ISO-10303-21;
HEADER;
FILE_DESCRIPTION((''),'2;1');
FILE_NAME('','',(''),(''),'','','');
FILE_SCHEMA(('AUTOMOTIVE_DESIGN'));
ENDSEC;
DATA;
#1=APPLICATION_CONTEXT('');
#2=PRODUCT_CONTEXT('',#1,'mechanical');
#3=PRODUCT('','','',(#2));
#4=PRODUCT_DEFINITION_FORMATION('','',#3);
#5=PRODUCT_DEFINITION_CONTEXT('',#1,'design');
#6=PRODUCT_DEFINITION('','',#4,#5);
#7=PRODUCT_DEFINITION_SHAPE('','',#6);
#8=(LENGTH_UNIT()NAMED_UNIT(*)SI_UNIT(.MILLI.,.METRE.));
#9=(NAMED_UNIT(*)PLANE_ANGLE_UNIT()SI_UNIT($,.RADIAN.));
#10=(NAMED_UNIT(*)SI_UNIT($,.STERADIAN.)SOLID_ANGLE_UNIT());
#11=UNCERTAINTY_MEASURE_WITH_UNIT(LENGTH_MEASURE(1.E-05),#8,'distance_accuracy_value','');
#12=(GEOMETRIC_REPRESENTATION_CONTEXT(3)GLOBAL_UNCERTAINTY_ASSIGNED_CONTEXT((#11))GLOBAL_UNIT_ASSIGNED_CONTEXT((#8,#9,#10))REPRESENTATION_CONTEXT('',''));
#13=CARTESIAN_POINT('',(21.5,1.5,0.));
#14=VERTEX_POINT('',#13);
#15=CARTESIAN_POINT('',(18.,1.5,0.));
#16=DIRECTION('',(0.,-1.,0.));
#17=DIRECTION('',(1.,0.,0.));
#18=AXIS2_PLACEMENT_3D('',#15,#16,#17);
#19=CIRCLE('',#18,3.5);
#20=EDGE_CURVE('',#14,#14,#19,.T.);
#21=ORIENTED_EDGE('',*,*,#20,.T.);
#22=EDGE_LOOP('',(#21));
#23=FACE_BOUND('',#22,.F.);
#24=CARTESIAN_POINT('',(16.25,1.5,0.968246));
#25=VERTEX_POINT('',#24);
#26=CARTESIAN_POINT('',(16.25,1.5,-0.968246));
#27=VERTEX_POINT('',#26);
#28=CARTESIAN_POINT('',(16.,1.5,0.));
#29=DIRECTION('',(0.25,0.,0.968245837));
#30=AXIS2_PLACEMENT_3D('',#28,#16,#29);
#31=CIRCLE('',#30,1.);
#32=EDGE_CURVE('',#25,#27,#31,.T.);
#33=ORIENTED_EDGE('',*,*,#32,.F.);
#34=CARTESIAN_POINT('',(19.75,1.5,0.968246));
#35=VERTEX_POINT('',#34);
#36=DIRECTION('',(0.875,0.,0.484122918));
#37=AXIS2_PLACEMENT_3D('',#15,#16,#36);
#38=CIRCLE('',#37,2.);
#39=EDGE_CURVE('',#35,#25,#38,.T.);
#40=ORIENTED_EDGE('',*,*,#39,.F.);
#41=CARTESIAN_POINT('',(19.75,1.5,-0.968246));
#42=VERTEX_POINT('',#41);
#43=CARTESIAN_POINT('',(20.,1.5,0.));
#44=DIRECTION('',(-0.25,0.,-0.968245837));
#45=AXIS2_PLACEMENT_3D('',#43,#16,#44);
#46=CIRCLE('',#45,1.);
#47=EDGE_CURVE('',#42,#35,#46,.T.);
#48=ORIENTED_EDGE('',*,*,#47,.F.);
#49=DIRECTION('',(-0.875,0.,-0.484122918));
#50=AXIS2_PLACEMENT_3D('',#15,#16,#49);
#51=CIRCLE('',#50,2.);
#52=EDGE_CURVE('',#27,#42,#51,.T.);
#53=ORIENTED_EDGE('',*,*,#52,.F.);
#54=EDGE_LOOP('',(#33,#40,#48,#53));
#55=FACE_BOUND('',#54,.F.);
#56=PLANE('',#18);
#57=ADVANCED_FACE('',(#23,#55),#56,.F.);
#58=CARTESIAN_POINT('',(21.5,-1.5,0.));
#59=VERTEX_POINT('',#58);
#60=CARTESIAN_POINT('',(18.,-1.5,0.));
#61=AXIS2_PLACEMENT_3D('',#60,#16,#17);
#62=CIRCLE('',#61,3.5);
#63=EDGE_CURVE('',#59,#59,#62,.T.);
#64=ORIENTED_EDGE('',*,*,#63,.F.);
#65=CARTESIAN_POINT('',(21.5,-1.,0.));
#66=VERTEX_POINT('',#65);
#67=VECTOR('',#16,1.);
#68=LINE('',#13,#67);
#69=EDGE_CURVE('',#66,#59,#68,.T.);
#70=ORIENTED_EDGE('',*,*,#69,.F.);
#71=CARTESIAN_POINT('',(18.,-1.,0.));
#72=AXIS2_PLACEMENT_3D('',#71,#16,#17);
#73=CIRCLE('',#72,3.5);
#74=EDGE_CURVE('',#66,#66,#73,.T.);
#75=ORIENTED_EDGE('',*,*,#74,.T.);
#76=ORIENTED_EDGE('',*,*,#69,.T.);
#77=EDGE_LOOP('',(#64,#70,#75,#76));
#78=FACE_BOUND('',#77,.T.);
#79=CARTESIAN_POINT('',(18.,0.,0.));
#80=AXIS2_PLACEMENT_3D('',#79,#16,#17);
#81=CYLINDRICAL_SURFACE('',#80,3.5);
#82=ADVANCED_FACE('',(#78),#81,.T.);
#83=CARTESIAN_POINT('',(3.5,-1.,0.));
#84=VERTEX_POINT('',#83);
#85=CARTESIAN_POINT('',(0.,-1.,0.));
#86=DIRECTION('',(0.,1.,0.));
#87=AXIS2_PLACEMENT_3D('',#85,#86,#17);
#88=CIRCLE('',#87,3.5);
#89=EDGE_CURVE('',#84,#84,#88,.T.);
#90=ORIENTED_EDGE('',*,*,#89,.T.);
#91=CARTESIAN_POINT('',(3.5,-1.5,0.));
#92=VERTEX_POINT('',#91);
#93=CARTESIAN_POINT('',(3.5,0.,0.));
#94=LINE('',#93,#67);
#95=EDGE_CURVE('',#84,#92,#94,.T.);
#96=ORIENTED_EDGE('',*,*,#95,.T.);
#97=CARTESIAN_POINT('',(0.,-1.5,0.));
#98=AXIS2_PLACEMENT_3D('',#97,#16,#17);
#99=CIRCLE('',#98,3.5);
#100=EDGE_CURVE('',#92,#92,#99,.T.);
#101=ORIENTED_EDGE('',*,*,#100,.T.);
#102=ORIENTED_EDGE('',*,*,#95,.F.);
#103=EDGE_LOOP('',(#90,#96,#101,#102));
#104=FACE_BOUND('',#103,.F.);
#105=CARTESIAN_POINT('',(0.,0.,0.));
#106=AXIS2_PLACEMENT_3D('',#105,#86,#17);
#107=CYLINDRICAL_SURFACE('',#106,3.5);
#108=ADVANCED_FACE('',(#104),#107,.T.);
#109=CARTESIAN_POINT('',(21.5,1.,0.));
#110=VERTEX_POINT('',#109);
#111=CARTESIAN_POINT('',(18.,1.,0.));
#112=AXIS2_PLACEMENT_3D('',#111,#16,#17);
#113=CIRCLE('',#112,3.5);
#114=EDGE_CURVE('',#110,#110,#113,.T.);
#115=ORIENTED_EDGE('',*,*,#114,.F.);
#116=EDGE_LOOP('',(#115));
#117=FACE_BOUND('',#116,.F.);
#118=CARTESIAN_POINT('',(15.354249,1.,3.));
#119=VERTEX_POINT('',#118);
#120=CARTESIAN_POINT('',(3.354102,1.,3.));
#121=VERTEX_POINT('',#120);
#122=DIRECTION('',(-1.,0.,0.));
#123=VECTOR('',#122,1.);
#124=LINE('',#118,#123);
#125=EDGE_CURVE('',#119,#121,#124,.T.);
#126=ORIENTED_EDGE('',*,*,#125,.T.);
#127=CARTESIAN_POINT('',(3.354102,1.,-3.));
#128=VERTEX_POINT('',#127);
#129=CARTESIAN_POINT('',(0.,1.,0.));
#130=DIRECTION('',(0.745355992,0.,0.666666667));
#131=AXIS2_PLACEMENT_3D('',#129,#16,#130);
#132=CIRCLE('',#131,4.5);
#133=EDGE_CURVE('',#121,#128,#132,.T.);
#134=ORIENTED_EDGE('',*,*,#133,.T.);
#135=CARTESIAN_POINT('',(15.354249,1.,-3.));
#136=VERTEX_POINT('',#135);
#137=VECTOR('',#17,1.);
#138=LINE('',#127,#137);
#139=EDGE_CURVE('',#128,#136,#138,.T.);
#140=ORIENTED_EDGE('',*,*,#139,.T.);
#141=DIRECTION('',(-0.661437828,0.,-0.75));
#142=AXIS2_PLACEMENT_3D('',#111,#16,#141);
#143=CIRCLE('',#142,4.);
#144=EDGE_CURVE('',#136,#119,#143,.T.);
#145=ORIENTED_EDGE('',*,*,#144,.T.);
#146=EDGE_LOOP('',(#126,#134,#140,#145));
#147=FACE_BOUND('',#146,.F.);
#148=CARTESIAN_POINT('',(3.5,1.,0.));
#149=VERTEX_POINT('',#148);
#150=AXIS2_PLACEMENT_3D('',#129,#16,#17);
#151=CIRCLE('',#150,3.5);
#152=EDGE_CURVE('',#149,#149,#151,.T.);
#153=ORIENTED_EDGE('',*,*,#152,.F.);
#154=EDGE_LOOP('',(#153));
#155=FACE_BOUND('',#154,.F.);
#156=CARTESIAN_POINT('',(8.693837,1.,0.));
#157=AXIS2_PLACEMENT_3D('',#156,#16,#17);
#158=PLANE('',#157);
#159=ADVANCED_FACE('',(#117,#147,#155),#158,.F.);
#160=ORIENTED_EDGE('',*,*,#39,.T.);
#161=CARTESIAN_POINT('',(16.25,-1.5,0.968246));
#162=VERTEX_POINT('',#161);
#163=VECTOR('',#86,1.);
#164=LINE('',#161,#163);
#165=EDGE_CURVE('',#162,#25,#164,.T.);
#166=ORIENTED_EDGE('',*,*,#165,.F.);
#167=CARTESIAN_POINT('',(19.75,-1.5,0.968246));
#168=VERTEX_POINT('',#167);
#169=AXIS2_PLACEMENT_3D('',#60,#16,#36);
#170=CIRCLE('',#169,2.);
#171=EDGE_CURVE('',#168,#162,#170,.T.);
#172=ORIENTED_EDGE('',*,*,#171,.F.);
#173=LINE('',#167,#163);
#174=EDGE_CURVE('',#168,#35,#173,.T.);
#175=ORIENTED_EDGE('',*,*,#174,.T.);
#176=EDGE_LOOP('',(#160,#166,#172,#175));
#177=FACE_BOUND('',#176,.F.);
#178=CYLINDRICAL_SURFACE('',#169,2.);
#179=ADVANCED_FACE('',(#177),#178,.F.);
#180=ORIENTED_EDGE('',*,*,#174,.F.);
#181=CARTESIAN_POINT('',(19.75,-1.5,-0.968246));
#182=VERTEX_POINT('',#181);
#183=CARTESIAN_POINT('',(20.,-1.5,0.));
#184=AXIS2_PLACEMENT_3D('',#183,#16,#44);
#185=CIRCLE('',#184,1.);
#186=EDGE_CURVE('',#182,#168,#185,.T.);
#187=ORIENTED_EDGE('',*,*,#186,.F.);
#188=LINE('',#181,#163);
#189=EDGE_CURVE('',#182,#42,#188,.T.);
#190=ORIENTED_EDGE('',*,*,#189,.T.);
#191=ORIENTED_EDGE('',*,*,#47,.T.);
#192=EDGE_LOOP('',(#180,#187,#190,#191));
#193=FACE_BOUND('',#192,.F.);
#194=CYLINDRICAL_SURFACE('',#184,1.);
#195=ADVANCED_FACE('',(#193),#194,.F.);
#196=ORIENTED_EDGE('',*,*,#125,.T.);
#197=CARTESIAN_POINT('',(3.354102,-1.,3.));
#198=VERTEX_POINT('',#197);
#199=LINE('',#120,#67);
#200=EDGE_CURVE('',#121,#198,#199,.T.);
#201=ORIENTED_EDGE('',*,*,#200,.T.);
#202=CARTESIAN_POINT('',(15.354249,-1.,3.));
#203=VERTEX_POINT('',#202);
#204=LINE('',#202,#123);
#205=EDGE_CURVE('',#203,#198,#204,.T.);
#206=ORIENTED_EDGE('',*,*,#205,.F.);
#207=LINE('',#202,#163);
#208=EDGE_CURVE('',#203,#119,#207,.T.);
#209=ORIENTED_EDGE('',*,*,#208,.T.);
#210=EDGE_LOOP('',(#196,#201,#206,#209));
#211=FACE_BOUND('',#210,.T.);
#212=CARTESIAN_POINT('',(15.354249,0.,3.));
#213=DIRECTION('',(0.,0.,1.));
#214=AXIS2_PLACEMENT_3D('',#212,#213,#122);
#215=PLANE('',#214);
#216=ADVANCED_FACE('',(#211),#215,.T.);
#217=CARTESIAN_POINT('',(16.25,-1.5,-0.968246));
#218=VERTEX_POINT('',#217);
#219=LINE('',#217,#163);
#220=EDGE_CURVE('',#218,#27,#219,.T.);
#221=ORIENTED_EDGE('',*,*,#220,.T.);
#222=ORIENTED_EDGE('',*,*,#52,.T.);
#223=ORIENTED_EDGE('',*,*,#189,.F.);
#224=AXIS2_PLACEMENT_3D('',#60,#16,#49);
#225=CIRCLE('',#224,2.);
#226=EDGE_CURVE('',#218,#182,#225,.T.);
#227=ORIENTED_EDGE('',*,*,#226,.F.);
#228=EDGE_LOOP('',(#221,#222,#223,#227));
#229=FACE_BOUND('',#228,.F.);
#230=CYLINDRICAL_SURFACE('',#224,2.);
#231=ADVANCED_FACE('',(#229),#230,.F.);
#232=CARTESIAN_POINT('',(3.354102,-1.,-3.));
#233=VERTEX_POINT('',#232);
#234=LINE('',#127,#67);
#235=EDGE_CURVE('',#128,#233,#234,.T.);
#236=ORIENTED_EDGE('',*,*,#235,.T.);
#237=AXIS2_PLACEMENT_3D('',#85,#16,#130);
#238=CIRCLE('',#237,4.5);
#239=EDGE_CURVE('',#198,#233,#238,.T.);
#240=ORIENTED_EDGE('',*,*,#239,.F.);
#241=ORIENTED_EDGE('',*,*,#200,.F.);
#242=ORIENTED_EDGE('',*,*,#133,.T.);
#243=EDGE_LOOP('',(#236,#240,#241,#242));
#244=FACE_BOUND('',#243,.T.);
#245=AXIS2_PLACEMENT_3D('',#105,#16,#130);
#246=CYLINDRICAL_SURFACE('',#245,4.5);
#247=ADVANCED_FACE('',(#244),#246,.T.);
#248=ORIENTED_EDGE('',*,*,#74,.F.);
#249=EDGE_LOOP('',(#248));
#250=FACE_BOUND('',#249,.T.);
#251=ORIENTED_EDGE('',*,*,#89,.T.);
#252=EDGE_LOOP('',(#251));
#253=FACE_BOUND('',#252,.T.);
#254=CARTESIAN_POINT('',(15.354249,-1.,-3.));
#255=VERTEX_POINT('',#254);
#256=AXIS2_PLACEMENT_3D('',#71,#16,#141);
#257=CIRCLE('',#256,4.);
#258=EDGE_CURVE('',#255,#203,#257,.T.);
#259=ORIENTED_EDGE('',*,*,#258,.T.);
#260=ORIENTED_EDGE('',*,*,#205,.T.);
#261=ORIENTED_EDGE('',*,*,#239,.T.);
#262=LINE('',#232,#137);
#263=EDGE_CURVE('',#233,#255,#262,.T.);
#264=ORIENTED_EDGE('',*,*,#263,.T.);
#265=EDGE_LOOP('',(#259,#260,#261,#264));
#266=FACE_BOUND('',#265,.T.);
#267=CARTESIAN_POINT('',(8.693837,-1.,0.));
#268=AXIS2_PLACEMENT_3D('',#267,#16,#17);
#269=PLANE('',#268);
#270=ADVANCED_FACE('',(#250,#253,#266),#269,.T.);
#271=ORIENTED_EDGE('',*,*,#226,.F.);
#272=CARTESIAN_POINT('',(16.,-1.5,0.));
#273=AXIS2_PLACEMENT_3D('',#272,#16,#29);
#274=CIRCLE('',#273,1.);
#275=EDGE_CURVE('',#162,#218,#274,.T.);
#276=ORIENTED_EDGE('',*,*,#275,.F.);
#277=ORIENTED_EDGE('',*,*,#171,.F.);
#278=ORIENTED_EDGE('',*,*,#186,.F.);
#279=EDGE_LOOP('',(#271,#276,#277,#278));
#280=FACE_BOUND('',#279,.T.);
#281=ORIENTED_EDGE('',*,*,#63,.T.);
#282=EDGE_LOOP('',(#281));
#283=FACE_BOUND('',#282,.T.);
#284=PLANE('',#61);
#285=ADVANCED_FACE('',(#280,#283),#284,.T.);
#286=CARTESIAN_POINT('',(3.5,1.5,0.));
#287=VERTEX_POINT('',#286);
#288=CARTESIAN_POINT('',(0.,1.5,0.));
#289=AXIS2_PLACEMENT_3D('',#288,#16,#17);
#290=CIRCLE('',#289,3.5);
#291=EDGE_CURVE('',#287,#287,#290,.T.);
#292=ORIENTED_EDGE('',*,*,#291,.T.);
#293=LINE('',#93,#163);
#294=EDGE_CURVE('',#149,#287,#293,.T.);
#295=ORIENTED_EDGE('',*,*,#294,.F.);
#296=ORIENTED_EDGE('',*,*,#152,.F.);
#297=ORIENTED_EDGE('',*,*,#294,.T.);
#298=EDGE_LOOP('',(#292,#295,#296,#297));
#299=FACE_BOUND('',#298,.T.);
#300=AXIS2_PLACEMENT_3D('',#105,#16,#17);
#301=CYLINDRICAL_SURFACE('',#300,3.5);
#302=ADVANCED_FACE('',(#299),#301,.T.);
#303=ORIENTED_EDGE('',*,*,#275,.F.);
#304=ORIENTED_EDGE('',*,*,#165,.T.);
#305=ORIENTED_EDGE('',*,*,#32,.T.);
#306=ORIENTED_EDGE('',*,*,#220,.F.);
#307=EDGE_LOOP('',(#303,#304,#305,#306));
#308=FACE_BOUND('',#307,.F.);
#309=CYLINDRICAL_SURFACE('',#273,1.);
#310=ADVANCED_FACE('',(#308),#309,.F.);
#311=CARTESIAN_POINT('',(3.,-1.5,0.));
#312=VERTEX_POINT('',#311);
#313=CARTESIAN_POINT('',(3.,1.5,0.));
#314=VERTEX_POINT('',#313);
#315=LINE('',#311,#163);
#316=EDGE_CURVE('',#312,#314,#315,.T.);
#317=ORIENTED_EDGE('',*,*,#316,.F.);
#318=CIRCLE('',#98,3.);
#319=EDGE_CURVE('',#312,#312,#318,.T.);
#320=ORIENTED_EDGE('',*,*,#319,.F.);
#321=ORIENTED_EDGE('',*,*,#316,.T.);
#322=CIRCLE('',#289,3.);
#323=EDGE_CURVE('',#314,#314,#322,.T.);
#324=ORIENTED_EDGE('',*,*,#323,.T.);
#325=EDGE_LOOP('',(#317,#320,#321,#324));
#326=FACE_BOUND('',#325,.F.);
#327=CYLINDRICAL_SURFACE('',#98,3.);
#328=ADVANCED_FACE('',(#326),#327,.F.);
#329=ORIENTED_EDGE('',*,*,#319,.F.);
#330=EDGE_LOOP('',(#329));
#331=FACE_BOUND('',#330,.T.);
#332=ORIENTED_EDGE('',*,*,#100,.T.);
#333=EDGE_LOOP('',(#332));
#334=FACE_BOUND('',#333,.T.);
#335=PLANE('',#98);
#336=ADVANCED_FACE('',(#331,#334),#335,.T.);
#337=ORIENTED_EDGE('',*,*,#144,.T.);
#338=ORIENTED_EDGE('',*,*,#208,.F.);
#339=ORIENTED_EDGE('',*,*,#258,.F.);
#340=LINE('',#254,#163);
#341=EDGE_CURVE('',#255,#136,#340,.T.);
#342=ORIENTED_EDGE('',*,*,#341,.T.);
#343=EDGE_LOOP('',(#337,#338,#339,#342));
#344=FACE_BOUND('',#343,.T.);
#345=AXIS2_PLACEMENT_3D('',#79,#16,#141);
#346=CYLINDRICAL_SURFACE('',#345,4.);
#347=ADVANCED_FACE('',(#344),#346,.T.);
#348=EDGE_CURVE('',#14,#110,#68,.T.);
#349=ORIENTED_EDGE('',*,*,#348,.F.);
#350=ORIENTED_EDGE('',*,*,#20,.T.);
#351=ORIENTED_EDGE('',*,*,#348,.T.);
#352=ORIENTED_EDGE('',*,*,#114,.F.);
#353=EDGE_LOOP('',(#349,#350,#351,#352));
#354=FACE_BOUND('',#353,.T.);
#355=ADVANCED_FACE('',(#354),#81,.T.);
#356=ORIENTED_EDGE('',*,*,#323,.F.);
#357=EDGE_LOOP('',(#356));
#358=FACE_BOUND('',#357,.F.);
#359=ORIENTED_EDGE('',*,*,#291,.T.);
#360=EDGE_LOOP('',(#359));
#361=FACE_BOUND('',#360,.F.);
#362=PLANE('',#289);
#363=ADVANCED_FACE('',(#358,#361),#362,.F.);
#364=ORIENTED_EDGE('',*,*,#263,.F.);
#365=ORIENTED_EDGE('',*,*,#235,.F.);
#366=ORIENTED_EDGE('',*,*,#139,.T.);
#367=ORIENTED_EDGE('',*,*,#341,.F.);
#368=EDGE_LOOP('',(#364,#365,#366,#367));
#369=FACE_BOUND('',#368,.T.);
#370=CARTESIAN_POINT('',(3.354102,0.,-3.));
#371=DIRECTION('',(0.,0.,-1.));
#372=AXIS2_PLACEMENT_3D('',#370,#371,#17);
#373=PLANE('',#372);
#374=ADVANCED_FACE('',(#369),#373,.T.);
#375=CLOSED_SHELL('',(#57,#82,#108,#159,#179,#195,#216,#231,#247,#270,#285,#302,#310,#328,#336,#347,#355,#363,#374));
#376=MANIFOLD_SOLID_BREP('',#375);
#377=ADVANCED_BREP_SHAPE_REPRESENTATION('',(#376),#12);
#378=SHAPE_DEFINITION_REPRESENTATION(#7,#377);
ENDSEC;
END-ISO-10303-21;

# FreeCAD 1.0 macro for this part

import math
import FreeCAD as App
import Part
import Sketcher
from FreeCAD import Vector
Q = App.Units.Quantity

doc = App.newDocument("Part")
body = doc.addObject("PartDesign::Body", "Body")

# Sketch on XZ plane
sketch1 = body.newObject("Sketcher::SketchObject", "Sketch")
sketch1.AttachmentSupport = (doc.getObject("XZ_Plane"), [""])
sketch1.MapMode = "FlatFace"
sketch1.addGeometry([
    Part.LineSegment(Vector(15.354249, 3, 0), Vector(3.354102, 3, 0)),
    Part.ArcOfCircle(Part.Circle(Vector(0, 0, 0), Vector(0, 0, 1), 4.5), math.radians(41.810315), math.radians(318.189685)),
    Part.LineSegment(Vector(3.354102, -3, 0), Vector(15.354249, -3, 0)),
    Part.ArcOfCircle(Part.Circle(Vector(18, 0, 0), Vector(0, 0, 1), 4), math.radians(-131.409622), math.radians(131.409622)),
], False)
sketch1.addConstraint([
    Sketcher.Constraint("Coincident", 0, 2, 1, 1),
    Sketcher.Constraint("Coincident", 1, 2, 2, 1),
    Sketcher.Constraint("Coincident", 2, 2, 3, 1),
    Sketcher.Constraint("Coincident", 3, 2, 0, 1),
    Sketcher.Constraint("Horizontal", 0),
    Sketcher.Constraint("Horizontal", 2),
    Sketcher.Constraint("Coincident", 1, 3, -1, 1),
    Sketcher.Constraint("Symmetric", 2, 2, 3, 2, -1),
    Sketcher.Constraint("Radius", 3, Q("4 mm")),
    Sketcher.Constraint("Radius", 1, Q("4.5 mm")),
    Sketcher.Constraint("DistanceX", -1, 1, 3, 3, Q("18 mm")),
    Sketcher.Constraint("DistanceY", -1, 1, 0, 2, Q("3 mm")),
])
pad1 = body.newObject("PartDesign::Pad", "Pad")
pad1.Profile = sketch1
pad1.Length = 2
pad1.Midplane = True

# Sketch on XZ plane
sketch2 = body.newObject("Sketcher::SketchObject", "Sketch001")
sketch2.AttachmentSupport = (doc.getObject("XZ_Plane"), [""])
sketch2.MapMode = "FlatFace"
sketch2.addGeometry([
    Part.Circle(Vector(0, 0, 0), Vector(0, 0, 1), 3.5),
    Part.Circle(Vector(18, 0, 0), Vector(0, 0, 1), 3.5),
], False)
sketch2.addConstraint([
    Sketcher.Constraint("Coincident", 0, 3, -1, 1),
    Sketcher.Constraint("Equal", 0, 1),
    Sketcher.Constraint("PointOnObject", 1, 3, -1),
    Sketcher.Constraint("Diameter", 0, Q("7 mm")),
    Sketcher.Constraint("DistanceX", -1, 1, 1, 3, Q("18 mm")),
])
pad2 = body.newObject("PartDesign::Pad", "Pad001")
pad2.Profile = sketch2
pad2.Length = 3
pad2.Midplane = True

# Sketch on XZ plane
sketch3 = body.newObject("Sketcher::SketchObject", "Sketch002")
sketch3.AttachmentSupport = (doc.getObject("XZ_Plane"), [""])
sketch3.MapMode = "FlatFace"
sketch3.AttachmentOffset = App.Placement(Vector(0, 0, 1.5), App.Rotation())
sketch3.addGeometry([
    Part.Circle(Vector(0, 0, 0), Vector(0, 0, 1), 3),  # 0
    Part.ArcOfCircle(Part.Circle(Vector(20, 0, 0), Vector(0, 0, 1), 1), math.radians(-104.477512), math.radians(104.477512)),  # 1
    Part.ArcOfCircle(Part.Circle(Vector(18, 0, 0), Vector(0, 0, 1), 2), math.radians(28.955024), math.radians(151.044976)),  # 2
    Part.ArcOfCircle(Part.Circle(Vector(16, 0, 0), Vector(0, 0, 1), 1), math.radians(75.522488), math.radians(284.477512)),  # 3
    Part.ArcOfCircle(Part.Circle(Vector(18, 0, 0), Vector(0, 0, 1), 2), math.radians(-151.044976), math.radians(-28.955024)),  # 4
], False)
sketch3.addConstraint([
    Sketcher.Constraint("Coincident", 1, 2, 2, 1),
    Sketcher.Constraint("Coincident", 2, 2, 3, 1),
    Sketcher.Constraint("Coincident", 3, 2, 4, 1),
    Sketcher.Constraint("Coincident", 4, 2, 1, 1),
    Sketcher.Constraint("Coincident", 0, 3, -1, 1),
    Sketcher.Constraint("Coincident", 4, 3, 2, 3),
    Sketcher.Constraint("Equal", 1, 3),
    Sketcher.Constraint("Equal", 2, 4),
    Sketcher.Constraint("Symmetric", 2, 2, 3, 2, -1),
    Sketcher.Constraint("PointOnObject", 1, 3, -1),
    Sketcher.Constraint("Horizontal", 1, 2, 2, 2),
    Sketcher.Constraint("Diameter", 0, Q("6 mm")),
    Sketcher.Constraint("Radius", 1, Q("1 mm")),
    Sketcher.Constraint("Radius", 2, Q("2 mm")),
    Sketcher.Constraint("DistanceX", -1, 1, 1, 3, Q("20 mm")),
    Sketcher.Constraint("DistanceX", -1, 1, 2, 3, Q("18 mm")),
])
pocket1 = body.newObject("PartDesign::Pocket", "Pocket")
pocket1.Profile = sketch3
pocket1.Type = "ThroughAll"

doc.recompute()
